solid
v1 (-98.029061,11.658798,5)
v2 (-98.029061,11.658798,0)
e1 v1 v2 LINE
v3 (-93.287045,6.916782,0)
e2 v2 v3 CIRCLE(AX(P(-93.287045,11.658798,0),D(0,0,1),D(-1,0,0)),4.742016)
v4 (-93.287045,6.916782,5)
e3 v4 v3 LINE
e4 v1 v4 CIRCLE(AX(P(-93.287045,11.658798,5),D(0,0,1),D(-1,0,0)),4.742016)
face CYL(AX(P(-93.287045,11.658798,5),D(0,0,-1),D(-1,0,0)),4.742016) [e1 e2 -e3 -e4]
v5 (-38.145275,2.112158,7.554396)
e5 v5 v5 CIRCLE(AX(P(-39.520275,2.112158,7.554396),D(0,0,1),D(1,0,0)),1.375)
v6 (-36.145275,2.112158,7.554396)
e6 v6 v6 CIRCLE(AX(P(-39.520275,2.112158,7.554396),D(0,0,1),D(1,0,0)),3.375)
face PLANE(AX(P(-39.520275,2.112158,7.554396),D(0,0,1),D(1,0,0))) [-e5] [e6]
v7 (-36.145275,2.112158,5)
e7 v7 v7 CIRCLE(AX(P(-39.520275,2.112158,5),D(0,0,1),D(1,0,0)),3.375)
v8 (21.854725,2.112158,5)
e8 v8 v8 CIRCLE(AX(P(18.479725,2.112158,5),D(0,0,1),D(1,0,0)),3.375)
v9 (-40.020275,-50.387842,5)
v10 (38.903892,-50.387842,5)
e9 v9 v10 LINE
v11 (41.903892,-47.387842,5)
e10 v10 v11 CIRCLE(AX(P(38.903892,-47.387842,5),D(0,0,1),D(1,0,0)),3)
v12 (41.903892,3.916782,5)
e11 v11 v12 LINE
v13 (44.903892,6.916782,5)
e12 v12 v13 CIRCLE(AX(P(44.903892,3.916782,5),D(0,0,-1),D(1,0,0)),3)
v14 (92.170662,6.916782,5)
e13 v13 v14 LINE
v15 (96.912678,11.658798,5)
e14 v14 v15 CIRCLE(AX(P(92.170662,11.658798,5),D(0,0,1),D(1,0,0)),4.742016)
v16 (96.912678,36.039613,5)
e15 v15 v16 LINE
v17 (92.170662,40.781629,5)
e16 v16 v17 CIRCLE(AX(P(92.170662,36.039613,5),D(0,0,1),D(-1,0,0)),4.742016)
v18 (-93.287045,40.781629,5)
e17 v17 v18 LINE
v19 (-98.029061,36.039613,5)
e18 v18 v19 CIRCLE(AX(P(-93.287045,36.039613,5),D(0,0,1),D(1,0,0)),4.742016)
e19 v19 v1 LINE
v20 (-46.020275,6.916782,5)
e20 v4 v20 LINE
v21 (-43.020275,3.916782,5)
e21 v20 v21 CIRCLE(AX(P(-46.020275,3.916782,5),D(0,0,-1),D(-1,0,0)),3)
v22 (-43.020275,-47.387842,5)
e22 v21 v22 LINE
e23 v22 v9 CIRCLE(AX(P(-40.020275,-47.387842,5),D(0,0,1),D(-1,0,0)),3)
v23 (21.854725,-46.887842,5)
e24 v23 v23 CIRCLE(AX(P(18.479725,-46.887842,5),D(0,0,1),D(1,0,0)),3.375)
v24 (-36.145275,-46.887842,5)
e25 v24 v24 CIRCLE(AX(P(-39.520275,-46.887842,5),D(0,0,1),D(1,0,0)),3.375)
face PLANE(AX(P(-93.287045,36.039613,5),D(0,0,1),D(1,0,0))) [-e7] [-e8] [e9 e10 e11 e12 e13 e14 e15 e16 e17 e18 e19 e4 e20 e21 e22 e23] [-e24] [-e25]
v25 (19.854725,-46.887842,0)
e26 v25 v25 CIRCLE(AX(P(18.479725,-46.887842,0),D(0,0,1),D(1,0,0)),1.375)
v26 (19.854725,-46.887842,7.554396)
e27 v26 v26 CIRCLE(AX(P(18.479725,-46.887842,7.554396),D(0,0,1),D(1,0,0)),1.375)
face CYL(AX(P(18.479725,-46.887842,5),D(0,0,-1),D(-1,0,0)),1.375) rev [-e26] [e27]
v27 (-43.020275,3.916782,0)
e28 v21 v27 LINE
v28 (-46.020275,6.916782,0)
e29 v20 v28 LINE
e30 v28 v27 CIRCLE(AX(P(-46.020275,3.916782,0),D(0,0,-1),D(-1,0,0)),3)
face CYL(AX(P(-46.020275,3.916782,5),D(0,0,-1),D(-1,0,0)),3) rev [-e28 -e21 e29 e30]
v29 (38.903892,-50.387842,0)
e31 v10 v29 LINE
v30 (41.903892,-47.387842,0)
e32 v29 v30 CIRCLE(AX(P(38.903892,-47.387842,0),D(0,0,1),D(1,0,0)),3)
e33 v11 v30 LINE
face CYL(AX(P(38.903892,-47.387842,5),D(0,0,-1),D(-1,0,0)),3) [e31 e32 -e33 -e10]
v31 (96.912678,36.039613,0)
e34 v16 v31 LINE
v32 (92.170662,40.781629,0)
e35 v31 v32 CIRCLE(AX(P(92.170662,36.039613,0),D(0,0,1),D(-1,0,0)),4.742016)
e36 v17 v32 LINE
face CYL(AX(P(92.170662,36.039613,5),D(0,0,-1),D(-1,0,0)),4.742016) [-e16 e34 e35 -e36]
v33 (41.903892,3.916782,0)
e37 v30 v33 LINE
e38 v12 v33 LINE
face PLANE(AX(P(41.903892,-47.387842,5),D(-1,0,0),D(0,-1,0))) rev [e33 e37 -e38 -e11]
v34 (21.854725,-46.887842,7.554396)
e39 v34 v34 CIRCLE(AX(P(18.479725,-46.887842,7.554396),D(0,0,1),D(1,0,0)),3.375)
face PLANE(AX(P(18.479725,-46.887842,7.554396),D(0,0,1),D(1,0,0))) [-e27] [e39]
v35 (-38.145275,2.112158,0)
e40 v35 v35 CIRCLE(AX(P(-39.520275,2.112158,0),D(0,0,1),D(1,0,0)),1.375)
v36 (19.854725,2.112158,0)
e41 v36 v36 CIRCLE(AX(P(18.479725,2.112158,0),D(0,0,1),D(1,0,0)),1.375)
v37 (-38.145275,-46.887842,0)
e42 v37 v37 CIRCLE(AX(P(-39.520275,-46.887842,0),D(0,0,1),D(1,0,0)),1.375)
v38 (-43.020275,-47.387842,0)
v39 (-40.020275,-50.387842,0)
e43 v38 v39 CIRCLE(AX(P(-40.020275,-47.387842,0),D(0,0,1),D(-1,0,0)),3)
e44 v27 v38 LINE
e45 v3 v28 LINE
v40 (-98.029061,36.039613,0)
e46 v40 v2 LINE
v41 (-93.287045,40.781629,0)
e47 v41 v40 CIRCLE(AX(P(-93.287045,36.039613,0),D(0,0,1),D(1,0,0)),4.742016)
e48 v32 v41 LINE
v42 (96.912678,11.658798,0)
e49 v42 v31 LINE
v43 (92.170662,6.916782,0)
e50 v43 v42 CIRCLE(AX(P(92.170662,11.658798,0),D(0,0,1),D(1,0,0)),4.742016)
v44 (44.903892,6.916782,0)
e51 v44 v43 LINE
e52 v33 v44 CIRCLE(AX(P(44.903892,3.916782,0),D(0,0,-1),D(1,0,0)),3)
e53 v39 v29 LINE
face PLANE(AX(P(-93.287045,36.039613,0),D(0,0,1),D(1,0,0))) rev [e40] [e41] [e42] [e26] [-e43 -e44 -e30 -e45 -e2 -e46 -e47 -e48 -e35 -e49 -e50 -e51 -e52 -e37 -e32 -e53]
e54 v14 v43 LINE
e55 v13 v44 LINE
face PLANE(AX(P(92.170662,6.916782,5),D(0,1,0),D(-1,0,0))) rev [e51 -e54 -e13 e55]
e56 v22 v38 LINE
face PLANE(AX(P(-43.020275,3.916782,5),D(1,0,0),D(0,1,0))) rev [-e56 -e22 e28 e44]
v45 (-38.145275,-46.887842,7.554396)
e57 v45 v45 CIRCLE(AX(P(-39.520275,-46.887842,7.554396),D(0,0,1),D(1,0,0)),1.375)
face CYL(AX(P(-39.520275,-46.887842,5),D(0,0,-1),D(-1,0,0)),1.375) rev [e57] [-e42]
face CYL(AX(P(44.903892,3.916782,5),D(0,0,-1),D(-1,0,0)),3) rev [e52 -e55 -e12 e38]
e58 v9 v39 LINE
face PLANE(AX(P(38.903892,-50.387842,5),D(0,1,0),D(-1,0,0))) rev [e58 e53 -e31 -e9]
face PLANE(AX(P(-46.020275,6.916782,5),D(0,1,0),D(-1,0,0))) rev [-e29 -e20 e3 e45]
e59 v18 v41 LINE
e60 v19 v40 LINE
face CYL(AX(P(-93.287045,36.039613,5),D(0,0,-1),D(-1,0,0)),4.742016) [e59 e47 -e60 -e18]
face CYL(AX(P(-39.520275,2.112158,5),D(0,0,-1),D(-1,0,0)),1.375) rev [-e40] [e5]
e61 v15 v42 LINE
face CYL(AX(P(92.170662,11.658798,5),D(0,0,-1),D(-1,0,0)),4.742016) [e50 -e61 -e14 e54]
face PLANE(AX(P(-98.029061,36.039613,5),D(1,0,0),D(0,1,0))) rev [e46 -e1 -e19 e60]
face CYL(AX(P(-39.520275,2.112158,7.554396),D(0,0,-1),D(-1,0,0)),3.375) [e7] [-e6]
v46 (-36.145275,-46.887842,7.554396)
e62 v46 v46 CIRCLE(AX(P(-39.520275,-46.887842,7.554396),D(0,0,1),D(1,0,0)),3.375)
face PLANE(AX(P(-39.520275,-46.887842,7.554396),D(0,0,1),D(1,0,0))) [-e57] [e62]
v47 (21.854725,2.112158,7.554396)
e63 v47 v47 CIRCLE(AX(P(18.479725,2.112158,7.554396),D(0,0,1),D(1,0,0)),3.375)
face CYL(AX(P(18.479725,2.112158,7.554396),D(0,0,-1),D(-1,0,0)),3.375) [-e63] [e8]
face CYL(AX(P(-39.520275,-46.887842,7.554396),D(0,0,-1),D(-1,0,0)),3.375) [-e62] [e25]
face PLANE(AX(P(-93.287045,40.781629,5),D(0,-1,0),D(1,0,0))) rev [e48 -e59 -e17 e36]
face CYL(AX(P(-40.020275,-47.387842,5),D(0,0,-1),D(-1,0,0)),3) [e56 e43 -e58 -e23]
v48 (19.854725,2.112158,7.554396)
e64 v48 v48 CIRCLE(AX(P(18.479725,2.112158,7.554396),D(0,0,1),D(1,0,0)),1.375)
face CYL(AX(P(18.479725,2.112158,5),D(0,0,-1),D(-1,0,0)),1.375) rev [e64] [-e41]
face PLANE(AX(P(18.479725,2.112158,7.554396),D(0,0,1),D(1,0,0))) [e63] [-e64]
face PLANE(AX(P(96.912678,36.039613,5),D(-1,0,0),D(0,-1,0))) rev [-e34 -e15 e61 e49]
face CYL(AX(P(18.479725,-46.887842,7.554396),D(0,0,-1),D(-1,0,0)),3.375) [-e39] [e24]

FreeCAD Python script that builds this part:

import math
import FreeCAD as App
import Part
import Sketcher
Q = App.Units.Quantity

doc = App.newDocument("Part")
params = doc.addObject("Spreadsheet::Sheet", "Params")
for row, (alias, value) in enumerate([
    ("sketch1_radius", "3 mm"),
    ("sketch1_diameter", "2.75 mm"),
    ("pad1_length", "5 mm"),
    ("sketch2_diameter", "6.75 mm"),
    ("sketch2_diameter2", "2.75 mm"),
    ("pad2_length", "2.554396 mm"),
], start=1):
    params.set(f"A{row}", alias)
    params.set(f"B{row}", "=" + value)
    params.setAlias(f"B{row}", alias)

body = doc.addObject("PartDesign::Body", "Body")

# Sketch on XY plane
sketch1 = doc.addObject("Sketcher::SketchObject", "Sketch")
body.addObject(sketch1)
sketch1.AttachmentSupport = (doc.XY_Plane, [""])
sketch1.MapMode = "FlatFace"
sketch1.addGeometry([
    Part.LineSegment(App.Vector(92.2, 40.8, 0), App.Vector(-93.3, 40.8, 0)),  # 0
    Part.ArcOfCircle(Part.Circle(App.Vector(-93.3, 36, 0), App.Vector(0, 0, 1), 4.7), math.radians(90), math.radians(180)),  # 1
    Part.LineSegment(App.Vector(-98, 36, 0), App.Vector(-98, 11.7, 0)),  # 2
    Part.ArcOfCircle(Part.Circle(App.Vector(-93.3, 11.7, 0), App.Vector(0, 0, 1), 4.7), math.radians(-180), math.radians(-90)),  # 3
    Part.LineSegment(App.Vector(-93.3, 6.9, 0), App.Vector(-46, 6.9, 0)),  # 4
    Part.ArcOfCircle(Part.Circle(App.Vector(-46, 3.9, 0), App.Vector(0, 0, 1), 3), math.radians(0), math.radians(90)),  # 5
    Part.LineSegment(App.Vector(-43, 3.9, 0), App.Vector(-43, -47.4, 0)),  # 6
    Part.ArcOfCircle(Part.Circle(App.Vector(-40, -47.4, 0), App.Vector(0, 0, 1), 3), math.radians(180), math.radians(270)),  # 7
    Part.LineSegment(App.Vector(-40, -50.4, 0), App.Vector(38.9, -50.4, 0)),  # 8
    Part.ArcOfCircle(Part.Circle(App.Vector(38.9, -47.4, 0), App.Vector(0, 0, 1), 3), math.radians(-90), math.radians(0)),  # 9
    Part.LineSegment(App.Vector(41.9, -47.4, 0), App.Vector(41.9, 3.9, 0)),  # 10
    Part.ArcOfCircle(Part.Circle(App.Vector(44.9, 3.9, 0), App.Vector(0, 0, 1), 3), math.radians(90), math.radians(180)),  # 11
    Part.LineSegment(App.Vector(44.9, 6.9, 0), App.Vector(92.2, 6.9, 0)),  # 12
    Part.ArcOfCircle(Part.Circle(App.Vector(92.2, 11.7, 0), App.Vector(0, 0, 1), 4.7), math.radians(-90), math.radians(0)),  # 13
    Part.LineSegment(App.Vector(96.9, 11.7, 0), App.Vector(96.9, 36, 0)),  # 14
    Part.ArcOfCircle(Part.Circle(App.Vector(92.2, 36, 0), App.Vector(0, 0, 1), 4.7), math.radians(0), math.radians(90)),  # 15
    Part.Circle(App.Vector(18.5, -46.9, 0), App.Vector(0, 0, 1), 1.4),  # 16
    Part.Circle(App.Vector(-39.5, -46.9, 0), App.Vector(0, 0, 1), 1.4),  # 17
    Part.Circle(App.Vector(18.5, 2.1, 0), App.Vector(0, 0, 1), 1.4),  # 18
    Part.Circle(App.Vector(-39.5, 2.1, 0), App.Vector(0, 0, 1), 1.4),  # 19
], False)
sketch1.addConstraint([
    Sketcher.Constraint("Tangent", 0, 2, 1, 1),
    Sketcher.Constraint("Tangent", 1, 2, 2, 1),
    Sketcher.Constraint("Tangent", 2, 2, 3, 1),
    Sketcher.Constraint("Tangent", 3, 2, 4, 1),
    Sketcher.Constraint("Tangent", 4, 2, 5, 2),
    Sketcher.Constraint("Tangent", 5, 1, 6, 1),
    Sketcher.Constraint("Tangent", 6, 2, 7, 1),
    Sketcher.Constraint("Tangent", 7, 2, 8, 1),
    Sketcher.Constraint("Tangent", 8, 2, 9, 1),
    Sketcher.Constraint("Tangent", 9, 2, 10, 1),
    Sketcher.Constraint("Tangent", 10, 2, 11, 2),
    Sketcher.Constraint("Tangent", 11, 1, 12, 1),
    Sketcher.Constraint("Tangent", 12, 2, 13, 1),
    Sketcher.Constraint("Tangent", 13, 2, 14, 1),
    Sketcher.Constraint("Tangent", 14, 2, 15, 1),
    Sketcher.Constraint("Tangent", 15, 2, 0, 1),
    Sketcher.Constraint("Horizontal", 0),
    Sketcher.Constraint("Vertical", 2),
    Sketcher.Constraint("Horizontal", 4),
    Sketcher.Constraint("Vertical", 6),
    Sketcher.Constraint("Horizontal", 8),
    Sketcher.Constraint("Vertical", 10),
    Sketcher.Constraint("Horizontal", 12),
    Sketcher.Constraint("Vertical", 14),
    Sketcher.Constraint("Equal", 1, 3),
    Sketcher.Constraint("Equal", 5, 7),
    Sketcher.Constraint("Equal", 7, 9),
    Sketcher.Constraint("Equal", 9, 11),
    Sketcher.Constraint("Equal", 3, 13),
    Sketcher.Constraint("Equal", 13, 15),
    Sketcher.Constraint("Equal", 16, 17),
    Sketcher.Constraint("Equal", 17, 18),
    Sketcher.Constraint("Equal", 18, 19),
    Sketcher.Constraint("Horizontal", 5, 3, 11, 3),
    Sketcher.Constraint("Horizontal", 16, 3, 17, 3),
    Sketcher.Constraint("Horizontal", 18, 3, 19, 3),
    Sketcher.Constraint("Vertical", 16, 3, 18, 3),
    Sketcher.Constraint("Vertical", 17, 3, 19, 3),
    Sketcher.Constraint("Equal", 4, 12),
    Sketcher.Constraint("Radius", 5, Q("3 mm")),
    Sketcher.Constraint("Diameter", 16, Q("2.75 mm")),
    Sketcher.Constraint("DistanceX", 17, 3, 16, 3, Q("58 mm")),
    Sketcher.Constraint("DistanceY", 16, 3, 18, 3, Q("49 mm")),
    Sketcher.Constraint("DistanceY", 9, 3, 16, 3, Q("0.5 mm")),
    Sketcher.Constraint("DistanceX", 7, 3, 16, 3, Q("58.5 mm")),
    Sketcher.Constraint("Radius", 1, Q("4.742016 mm")),
    Sketcher.Constraint("DistanceX", 4, 1, 4, 2, Q("47.26677 mm")),
    Sketcher.Constraint("DistanceX", 0, 2, 0, 1, Q("185.457707 mm")),
    Sketcher.Constraint("DistanceY", 2, 2, 2, 1, Q("24.380815 mm")),
    Sketcher.Constraint("DistanceY", 6, 2, 6, 1, Q("51.304625 mm")),
    Sketcher.Constraint("DistanceX", -1, 1, 13, 3, Q("92.170662 mm")),
    Sketcher.Constraint("DistanceY", -1, 1, 0, 2, Q("40.781629 mm")),
])
sketch1.setExpression("Constraints[39]", "Params.sketch1_radius")
sketch1.setExpression("Constraints[40]", "Params.sketch1_diameter")
pad1 = doc.addObject("PartDesign::Pad", "Pad")
body.addObject(pad1)
pad1.Profile = sketch1
pad1.setExpression("Length", "Params.pad1_length")

# Sketch on XY plane
sketch2 = doc.addObject("Sketcher::SketchObject", "Sketch001")
body.addObject(sketch2)
sketch2.AttachmentSupport = (doc.XY_Plane, [""])
sketch2.MapMode = "FlatFace"
sketch2.AttachmentOffset = App.Placement(App.Vector(0, 0, 5), App.Rotation())
sketch2.addGeometry([
    Part.Circle(App.Vector(-39.5, 2.1, 0), App.Vector(0, 0, 1), 3.4),  # 0
    Part.Circle(App.Vector(-39.5, 2.1, 0), App.Vector(0, 0, 1), 1.4),  # 1
    Part.Circle(App.Vector(18.5, 2.1, 0), App.Vector(0, 0, 1), 3.4),  # 2
    Part.Circle(App.Vector(18.5, 2.1, 0), App.Vector(0, 0, 1), 1.4),  # 3
    Part.Circle(App.Vector(18.5, -46.9, 0), App.Vector(0, 0, 1), 3.4),  # 4
    Part.Circle(App.Vector(18.5, -46.9, 0), App.Vector(0, 0, 1), 1.4),  # 5
    Part.Circle(App.Vector(-39.5, -46.9, 0), App.Vector(0, 0, 1), 3.4),  # 6
    Part.Circle(App.Vector(-39.5, -46.9, 0), App.Vector(0, 0, 1), 1.4),  # 7
], False)
sketch2.addConstraint([
    Sketcher.Constraint("Coincident", 1, 3, 0, 3),
    Sketcher.Constraint("Coincident", 3, 3, 2, 3),
    Sketcher.Constraint("Coincident", 5, 3, 4, 3),
    Sketcher.Constraint("Coincident", 7, 3, 6, 3),
    Sketcher.Constraint("Equal", 0, 2),
    Sketcher.Constraint("Equal", 1, 3),
    Sketcher.Constraint("Equal", 2, 4),
    Sketcher.Constraint("Equal", 3, 5),
    Sketcher.Constraint("Equal", 4, 6),
    Sketcher.Constraint("Equal", 5, 7),
    Sketcher.Constraint("Horizontal", 1, 3, 2, 3),
    Sketcher.Constraint("Horizontal", 5, 3, 6, 3),
    Sketcher.Constraint("Vertical", 3, 3, 4, 3),
    Sketcher.Constraint("Vertical", 1, 3, 6, 3),
    Sketcher.Constraint("Diameter", 0, Q("6.75 mm")),
    Sketcher.Constraint("Diameter", 1, Q("2.75 mm")),
    Sketcher.Constraint("DistanceX", 0, 3, 2, 3, Q("58 mm")),
    Sketcher.Constraint("DistanceY", 4, 3, 2, 3, Q("49 mm")),
    Sketcher.Constraint("DistanceX", 0, 3, -1, 1, Q("39.520275 mm")),
    Sketcher.Constraint("DistanceY", -1, 1, 0, 3, Q("2.112158 mm")),
])
sketch2.setExpression("Constraints[14]", "Params.sketch2_diameter")
sketch2.setExpression("Constraints[15]", "Params.sketch2_diameter2")
pad2 = doc.addObject("PartDesign::Pad", "Pad001")
body.addObject(pad2)
pad2.Profile = sketch2
pad2.setExpression("Length", "Params.pad2_length")

doc.recompute()
